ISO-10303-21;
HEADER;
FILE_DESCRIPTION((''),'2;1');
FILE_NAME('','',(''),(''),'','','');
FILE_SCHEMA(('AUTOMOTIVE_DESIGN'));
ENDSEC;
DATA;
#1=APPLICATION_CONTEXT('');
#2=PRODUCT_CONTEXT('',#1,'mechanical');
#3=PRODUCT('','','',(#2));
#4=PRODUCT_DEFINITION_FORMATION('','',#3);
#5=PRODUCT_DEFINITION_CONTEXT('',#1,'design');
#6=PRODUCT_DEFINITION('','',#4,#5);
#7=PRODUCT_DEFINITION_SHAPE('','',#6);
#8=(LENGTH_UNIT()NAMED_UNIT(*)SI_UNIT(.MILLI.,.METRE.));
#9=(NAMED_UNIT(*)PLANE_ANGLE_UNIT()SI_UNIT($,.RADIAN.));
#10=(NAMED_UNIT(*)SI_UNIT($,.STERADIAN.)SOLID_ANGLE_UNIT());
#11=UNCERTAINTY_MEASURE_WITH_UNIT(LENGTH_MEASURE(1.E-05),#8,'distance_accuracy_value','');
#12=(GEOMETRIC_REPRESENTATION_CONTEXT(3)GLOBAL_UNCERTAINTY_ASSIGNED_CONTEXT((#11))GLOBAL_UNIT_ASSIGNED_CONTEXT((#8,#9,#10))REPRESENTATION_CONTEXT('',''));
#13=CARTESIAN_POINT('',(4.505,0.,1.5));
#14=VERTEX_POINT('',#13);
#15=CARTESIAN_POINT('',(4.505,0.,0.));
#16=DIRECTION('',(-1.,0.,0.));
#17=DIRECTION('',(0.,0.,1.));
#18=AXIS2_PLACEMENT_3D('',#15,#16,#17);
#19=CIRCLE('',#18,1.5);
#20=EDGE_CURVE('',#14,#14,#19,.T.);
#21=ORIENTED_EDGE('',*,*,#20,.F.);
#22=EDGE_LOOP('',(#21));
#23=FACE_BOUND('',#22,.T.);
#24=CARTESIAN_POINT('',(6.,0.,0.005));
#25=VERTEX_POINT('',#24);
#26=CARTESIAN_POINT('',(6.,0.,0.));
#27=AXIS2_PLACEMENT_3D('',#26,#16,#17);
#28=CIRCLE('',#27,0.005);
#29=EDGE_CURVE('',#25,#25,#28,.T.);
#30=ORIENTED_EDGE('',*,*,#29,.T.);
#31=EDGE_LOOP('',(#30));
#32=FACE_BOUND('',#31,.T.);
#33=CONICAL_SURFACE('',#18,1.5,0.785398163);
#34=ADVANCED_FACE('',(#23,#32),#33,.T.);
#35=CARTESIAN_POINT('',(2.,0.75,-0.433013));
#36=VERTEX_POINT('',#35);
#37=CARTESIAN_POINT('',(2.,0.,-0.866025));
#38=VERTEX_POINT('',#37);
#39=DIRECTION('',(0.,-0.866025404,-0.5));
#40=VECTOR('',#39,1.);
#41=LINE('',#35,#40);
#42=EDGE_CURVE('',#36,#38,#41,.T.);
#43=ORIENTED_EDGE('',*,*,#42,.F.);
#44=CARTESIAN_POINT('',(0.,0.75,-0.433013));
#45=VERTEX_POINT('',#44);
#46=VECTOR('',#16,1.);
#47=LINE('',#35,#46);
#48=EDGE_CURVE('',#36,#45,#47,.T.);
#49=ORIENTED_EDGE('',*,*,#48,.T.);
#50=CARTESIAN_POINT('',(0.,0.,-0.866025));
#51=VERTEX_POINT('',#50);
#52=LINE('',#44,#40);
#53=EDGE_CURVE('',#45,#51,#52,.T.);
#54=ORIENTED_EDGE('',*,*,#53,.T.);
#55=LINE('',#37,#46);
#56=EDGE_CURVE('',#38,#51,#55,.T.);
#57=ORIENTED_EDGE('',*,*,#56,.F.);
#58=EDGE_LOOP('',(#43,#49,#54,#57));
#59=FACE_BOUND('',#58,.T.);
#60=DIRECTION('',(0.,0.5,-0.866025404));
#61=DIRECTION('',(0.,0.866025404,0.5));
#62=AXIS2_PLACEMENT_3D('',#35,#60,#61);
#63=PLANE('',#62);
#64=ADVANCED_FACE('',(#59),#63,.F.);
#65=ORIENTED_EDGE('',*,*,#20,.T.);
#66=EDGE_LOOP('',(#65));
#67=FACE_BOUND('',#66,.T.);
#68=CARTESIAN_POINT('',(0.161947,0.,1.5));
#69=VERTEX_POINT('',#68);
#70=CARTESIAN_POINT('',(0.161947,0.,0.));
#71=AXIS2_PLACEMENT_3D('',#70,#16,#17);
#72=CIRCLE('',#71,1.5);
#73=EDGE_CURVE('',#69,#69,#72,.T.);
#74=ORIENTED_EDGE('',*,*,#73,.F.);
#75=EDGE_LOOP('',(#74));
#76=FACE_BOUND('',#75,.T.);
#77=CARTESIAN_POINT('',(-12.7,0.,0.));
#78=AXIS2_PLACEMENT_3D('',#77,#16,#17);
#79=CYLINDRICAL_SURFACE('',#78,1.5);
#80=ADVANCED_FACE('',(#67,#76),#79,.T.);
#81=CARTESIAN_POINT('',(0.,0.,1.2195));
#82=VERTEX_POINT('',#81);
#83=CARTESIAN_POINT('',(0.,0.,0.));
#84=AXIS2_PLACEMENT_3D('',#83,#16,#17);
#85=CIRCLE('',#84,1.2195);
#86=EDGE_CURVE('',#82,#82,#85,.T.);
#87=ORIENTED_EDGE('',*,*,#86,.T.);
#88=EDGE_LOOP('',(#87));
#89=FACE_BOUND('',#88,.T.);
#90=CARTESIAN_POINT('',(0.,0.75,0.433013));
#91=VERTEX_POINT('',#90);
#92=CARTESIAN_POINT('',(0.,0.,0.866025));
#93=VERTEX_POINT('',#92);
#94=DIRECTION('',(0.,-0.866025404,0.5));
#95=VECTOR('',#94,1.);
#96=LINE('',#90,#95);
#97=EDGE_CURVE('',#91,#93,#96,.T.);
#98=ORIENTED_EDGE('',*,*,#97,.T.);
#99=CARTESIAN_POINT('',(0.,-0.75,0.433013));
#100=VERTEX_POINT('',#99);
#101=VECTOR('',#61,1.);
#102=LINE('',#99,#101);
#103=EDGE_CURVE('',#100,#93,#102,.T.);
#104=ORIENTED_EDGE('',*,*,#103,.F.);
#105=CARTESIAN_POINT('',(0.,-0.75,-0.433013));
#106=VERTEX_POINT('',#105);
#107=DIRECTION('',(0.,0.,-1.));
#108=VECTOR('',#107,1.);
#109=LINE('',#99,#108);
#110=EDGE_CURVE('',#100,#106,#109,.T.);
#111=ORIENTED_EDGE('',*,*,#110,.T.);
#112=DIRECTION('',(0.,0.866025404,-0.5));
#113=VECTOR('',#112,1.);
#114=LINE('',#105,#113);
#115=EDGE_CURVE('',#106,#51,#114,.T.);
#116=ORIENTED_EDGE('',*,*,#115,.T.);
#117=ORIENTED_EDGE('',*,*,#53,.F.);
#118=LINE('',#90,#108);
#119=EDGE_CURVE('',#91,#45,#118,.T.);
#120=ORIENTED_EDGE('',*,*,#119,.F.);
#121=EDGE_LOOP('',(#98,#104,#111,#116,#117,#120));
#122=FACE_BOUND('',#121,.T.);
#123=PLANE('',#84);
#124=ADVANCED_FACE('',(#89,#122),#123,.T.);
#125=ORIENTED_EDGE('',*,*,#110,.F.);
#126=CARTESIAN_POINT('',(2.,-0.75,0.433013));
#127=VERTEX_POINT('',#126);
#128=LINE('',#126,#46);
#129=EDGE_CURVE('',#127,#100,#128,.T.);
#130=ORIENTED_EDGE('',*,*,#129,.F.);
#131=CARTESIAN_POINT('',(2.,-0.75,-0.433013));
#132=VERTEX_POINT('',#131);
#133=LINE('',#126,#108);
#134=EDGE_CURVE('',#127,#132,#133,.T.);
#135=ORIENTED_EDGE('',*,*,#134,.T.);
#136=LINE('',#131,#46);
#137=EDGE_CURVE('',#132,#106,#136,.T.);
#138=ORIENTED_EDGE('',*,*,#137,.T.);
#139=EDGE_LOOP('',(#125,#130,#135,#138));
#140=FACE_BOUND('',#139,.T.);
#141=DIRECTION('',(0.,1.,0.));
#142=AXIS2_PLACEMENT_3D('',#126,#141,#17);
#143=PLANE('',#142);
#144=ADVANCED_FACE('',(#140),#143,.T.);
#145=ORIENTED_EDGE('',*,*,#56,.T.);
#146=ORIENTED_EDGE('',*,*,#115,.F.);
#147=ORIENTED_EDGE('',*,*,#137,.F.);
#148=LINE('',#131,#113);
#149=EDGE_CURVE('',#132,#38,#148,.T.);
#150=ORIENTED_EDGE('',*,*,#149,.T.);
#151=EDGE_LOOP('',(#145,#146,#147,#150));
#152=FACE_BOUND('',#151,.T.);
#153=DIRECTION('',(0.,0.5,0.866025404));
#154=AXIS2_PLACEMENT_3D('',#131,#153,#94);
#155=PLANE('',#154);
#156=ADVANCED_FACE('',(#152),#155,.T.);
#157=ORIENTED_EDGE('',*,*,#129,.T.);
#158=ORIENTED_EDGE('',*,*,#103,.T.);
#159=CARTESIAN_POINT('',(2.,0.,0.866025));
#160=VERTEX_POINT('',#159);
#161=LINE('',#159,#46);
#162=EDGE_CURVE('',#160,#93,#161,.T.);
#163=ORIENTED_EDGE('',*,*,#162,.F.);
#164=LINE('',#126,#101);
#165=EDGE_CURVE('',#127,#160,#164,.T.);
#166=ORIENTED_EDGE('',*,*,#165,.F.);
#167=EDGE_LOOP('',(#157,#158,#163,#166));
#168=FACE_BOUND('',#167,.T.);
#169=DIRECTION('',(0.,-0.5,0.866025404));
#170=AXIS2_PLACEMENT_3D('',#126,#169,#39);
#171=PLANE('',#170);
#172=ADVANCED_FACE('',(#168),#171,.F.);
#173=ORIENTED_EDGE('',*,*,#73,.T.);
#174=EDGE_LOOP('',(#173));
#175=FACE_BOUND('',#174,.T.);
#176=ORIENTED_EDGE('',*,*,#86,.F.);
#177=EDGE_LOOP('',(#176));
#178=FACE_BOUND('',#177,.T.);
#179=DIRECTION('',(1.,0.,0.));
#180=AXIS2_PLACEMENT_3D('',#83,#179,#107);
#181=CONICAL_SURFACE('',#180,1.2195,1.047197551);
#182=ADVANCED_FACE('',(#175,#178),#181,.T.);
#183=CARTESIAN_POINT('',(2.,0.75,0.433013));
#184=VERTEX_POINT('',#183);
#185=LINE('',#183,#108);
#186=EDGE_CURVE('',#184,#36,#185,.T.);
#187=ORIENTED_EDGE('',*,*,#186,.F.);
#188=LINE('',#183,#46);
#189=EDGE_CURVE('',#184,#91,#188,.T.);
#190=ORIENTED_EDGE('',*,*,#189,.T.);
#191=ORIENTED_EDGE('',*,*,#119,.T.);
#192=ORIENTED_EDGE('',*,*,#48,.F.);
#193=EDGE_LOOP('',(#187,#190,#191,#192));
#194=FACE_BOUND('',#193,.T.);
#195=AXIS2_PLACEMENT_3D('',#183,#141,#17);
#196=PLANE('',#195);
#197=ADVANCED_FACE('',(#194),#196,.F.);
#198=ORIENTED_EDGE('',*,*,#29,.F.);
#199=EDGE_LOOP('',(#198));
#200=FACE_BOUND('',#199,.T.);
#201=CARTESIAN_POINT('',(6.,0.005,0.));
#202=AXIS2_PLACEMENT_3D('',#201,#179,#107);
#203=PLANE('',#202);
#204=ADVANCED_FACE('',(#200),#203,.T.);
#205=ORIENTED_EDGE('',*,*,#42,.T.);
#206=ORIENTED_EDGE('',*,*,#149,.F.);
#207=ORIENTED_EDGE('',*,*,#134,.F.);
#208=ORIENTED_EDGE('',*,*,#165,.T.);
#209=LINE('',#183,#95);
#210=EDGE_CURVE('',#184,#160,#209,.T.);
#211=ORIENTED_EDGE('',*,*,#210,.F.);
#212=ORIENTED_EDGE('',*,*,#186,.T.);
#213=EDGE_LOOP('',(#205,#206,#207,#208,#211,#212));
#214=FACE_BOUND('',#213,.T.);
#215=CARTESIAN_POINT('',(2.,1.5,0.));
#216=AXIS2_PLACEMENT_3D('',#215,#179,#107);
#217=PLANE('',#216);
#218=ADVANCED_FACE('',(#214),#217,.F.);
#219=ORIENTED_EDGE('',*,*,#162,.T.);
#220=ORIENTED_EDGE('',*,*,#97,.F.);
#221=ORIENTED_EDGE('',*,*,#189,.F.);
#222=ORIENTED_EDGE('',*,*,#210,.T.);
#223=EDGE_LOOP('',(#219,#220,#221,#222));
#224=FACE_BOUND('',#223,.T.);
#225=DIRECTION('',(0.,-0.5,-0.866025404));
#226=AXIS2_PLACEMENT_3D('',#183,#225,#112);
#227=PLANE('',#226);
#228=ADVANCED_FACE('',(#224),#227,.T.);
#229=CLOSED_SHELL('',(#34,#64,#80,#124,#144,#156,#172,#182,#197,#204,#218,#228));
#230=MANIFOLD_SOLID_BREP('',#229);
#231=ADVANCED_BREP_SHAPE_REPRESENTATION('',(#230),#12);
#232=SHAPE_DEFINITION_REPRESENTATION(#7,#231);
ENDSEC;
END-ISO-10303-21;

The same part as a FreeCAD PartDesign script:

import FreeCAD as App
import Part
import Sketcher
from FreeCAD import Vector
Q = App.Units.Quantity

doc = App.newDocument("Part")
params = doc.addObject("Spreadsheet::Sheet", "Params")
for row, (alias, value) in enumerate([
    ("sketch1_width", "6 mm"),
    ("revolution_angle", "360 deg"),
    ("pocket1_length", "2 mm"),
], start=1):
    params.set(f"A{row}", alias)
    params.set(f"B{row}", "=" + value)
    params.setAlias(f"B{row}", alias)

body = doc.addObject("PartDesign::Body", "Body")

sketch1 = body.newObject("Sketcher::SketchObject", "Sketch")
sketch1.AttachmentSupport = (doc.getObject("XY_Plane"), [""])
sketch1.MapMode = "FlatFace"
sketch1.addGeometry([
    Part.LineSegment(Vector(0, 1.2195, 0), Vector(0, 0, 0)),
    Part.LineSegment(Vector(0, 0, 0), Vector(6, 0, 0)),
    Part.LineSegment(Vector(6, 0, 0), Vector(6, 0.005, 0)),
    Part.LineSegment(Vector(6, 0.005, 0), Vector(4.505, 1.5, 0)),
    Part.LineSegment(Vector(4.505, 1.5, 0), Vector(0.161947, 1.5, 0)),
    Part.LineSegment(Vector(0.161947, 1.5, 0), Vector(0, 1.2195, 0)),
], False)
sketch1.addConstraint([
    Sketcher.Constraint("Coincident", 0, 2, 1, 1),
    Sketcher.Constraint("Coincident", 1, 2, 2, 1),
    Sketcher.Constraint("Coincident", 2, 2, 3, 1),
    Sketcher.Constraint("Coincident", 3, 2, 4, 1),
    Sketcher.Constraint("Coincident", 4, 2, 5, 1),
    Sketcher.Constraint("Coincident", 5, 2, 0, 1),
    Sketcher.Constraint("Vertical", 0),
    Sketcher.Constraint("Horizontal", 1),
    Sketcher.Constraint("Vertical", 2),
    Sketcher.Constraint("Horizontal", 4),
    Sketcher.Constraint("Coincident", 0, 2, -1, 1),
    Sketcher.Constraint("DistanceX", 1, 1, 1, 2, 6.0),
    Sketcher.Constraint("Angle", 3, Q("135 deg")),
    Sketcher.Constraint("Angle", 5, Q("-120 deg")),
    Sketcher.Constraint("DistanceY", -1, 1, 3, 2, 1.5),
    Sketcher.Constraint("DistanceY", 2, 1, 2, 2, 0.005),
    Sketcher.Constraint("DistanceY", 0, 2, 0, 1, 1.2195),
])
sketch1.setExpression("Constraints[11]", "Params.sketch1_width")
revolution = body.newObject("PartDesign::Revolution", "Revolution")
revolution.Profile = sketch1
revolution.ReferenceAxis = (sketch1, ["H_Axis"])
revolution.setExpression("Angle", "Params.revolution_angle")

sketch2 = body.newObject("Sketcher::SketchObject", "Sketch001")
sketch2.AttachmentSupport = (doc.getObject("YZ_Plane"), [""])
sketch2.MapMode = "FlatFace"
sketch2.addGeometry([
    Part.LineSegment(Vector(0.75, 0.433013, 0), Vector(0.75, -0.433013, 0)),
    Part.LineSegment(Vector(0.75, -0.433013, 0), Vector(0, -0.866025, 0)),
    Part.LineSegment(Vector(0, -0.866025, 0), Vector(-0.75, -0.433013, 0)),
    Part.LineSegment(Vector(-0.75, -0.433013, 0), Vector(-0.75, 0.433013, 0)),
    Part.LineSegment(Vector(-0.75, 0.433013, 0), Vector(0, 0.866025, 0)),
    Part.LineSegment(Vector(0, 0.866025, 0), Vector(0.75, 0.433013, 0)),
], False)
sketch2.addConstraint([
    Sketcher.Constraint("Coincident", 0, 2, 1, 1),
    Sketcher.Constraint("Coincident", 1, 2, 2, 1),
    Sketcher.Constraint("Coincident", 2, 2, 3, 1),
    Sketcher.Constraint("Coincident", 3, 2, 4, 1),
    Sketcher.Constraint("Coincident", 4, 2, 5, 1),
    Sketcher.Constraint("Coincident", 5, 2, 0, 1),
    Sketcher.Constraint("Vertical", 0),
    Sketcher.Constraint("Vertical", 3),
    Sketcher.Constraint("Symmetric", 0, 2, 3, 2, -1, 1),
    Sketcher.Constraint("Symmetric", 1, 2, 4, 2, -1, 1),
    Sketcher.Constraint("PointOnObject", 1, 2, -2),
    Sketcher.Constraint("Parallel", 2, 5),
    Sketcher.Constraint("Horizontal", 0, 2, 2, 2),
    Sketcher.Constraint("Angle", 1, Q("-150 deg")),
    Sketcher.Constraint("DistanceX", 2, 2, 0, 2, 1.5),
    Sketcher.Constraint("DistanceY", 0, 2, 0, 1, 0.866025),
])
pocket1 = body.newObject("PartDesign::Pocket", "Pocket")
pocket1.Profile = sketch2
pocket1.setExpression("Length", "Params.pocket1_length")
pocket1.Reversed = True

doc.recompute()
